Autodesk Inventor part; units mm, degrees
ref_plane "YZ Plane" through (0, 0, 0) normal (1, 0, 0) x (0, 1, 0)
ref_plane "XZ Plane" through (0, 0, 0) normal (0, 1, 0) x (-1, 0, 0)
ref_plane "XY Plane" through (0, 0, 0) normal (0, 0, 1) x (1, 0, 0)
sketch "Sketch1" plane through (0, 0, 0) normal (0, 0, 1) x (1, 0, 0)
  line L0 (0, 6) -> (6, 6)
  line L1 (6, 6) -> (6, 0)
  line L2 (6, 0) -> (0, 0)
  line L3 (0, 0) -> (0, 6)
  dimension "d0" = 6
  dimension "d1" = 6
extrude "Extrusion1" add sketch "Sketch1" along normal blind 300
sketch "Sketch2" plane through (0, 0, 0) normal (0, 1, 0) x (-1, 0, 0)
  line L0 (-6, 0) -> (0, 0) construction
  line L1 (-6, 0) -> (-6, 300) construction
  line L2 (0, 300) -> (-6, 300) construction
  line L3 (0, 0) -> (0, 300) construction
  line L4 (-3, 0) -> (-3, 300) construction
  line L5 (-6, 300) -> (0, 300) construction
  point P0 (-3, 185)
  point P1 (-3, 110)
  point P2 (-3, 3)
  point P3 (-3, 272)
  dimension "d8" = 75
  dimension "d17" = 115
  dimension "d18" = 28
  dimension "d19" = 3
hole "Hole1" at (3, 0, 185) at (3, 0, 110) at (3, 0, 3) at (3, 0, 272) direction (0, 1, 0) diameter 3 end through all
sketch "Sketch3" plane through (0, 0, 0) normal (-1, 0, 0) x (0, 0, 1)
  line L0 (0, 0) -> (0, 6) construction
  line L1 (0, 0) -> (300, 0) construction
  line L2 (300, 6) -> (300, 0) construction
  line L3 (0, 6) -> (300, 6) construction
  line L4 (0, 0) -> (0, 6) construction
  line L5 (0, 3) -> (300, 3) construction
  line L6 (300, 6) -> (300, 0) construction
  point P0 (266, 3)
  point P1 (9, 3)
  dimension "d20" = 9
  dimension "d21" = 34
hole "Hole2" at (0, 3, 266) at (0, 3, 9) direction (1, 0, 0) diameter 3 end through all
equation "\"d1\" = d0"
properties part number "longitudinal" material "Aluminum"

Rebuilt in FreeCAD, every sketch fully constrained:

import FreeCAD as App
import Part
import Sketcher

doc = App.newDocument("Part")
body = doc.addObject("PartDesign::Body", "Body")

# Sketch on XY plane
sketch1 = doc.addObject("Sketcher::SketchObject", "Sketch")
body.addObject(sketch1)
sketch1.AttachmentSupport = (doc.XY_Plane, [""])
sketch1.MapMode = "FlatFace"
sketch1.addGeometry([
    Part.LineSegment(App.Vector(6, 6, 0), App.Vector(0, 6, 0)),
    Part.LineSegment(App.Vector(0, 6, 0), App.Vector(0, 0, 0)),
    Part.LineSegment(App.Vector(0, 0, 0), App.Vector(6, 0, 0)),
    Part.LineSegment(App.Vector(6, 0, 0), App.Vector(6, 6, 0)),
], False)
sketch1.addConstraint([
    Sketcher.Constraint("Coincident", 0, 2, 1, 1),
    Sketcher.Constraint("Coincident", 1, 2, 2, 1),
    Sketcher.Constraint("Coincident", 2, 2, 3, 1),
    Sketcher.Constraint("Coincident", 3, 2, 0, 1),
    Sketcher.Constraint("Horizontal", 0),
    Sketcher.Constraint("Vertical", 1),
    Sketcher.Constraint("Horizontal", 2),
    Sketcher.Constraint("Vertical", 3),
    Sketcher.Constraint("Coincident", 1, 2, -1, 1),
    Sketcher.Constraint("Equal", 2, 1),
    Sketcher.Constraint("DistanceX", 0, 2, 0, 1, 6.0),
])
pad1 = doc.addObject("PartDesign::Pad", "Pad")
body.addObject(pad1)
pad1.Profile = sketch1
pad1.Length = 300

# Sketch on XZ plane
sketch2 = doc.addObject("Sketcher::SketchObject", "Sketch001")
body.addObject(sketch2)
sketch2.AttachmentSupport = (doc.XZ_Plane, [""])
sketch2.MapMode = "FlatFace"
sketch2.addGeometry([
    Part.Circle(App.Vector(3, 185, 0), App.Vector(0, 0, 1), 1.5),
    Part.Circle(App.Vector(3, 110, 0), App.Vector(0, 0, 1), 1.5),
    Part.Circle(App.Vector(3, 3, 0), App.Vector(0, 0, 1), 1.5),
    Part.Circle(App.Vector(3, 272, 0), App.Vector(0, 0, 1), 1.5),
], False)
sketch2.addConstraint([
    Sketcher.Constraint("Equal", 0, 1),
    Sketcher.Constraint("Equal", 1, 2),
    Sketcher.Constraint("Equal", 2, 3),
    Sketcher.Constraint("Vertical", 0, 3, 1, 3),
    Sketcher.Constraint("Vertical", 1, 3, 2, 3),
    Sketcher.Constraint("Vertical", 2, 3, 3, 3),
    Sketcher.Constraint("Diameter", 0, 3.0),
    Sketcher.Constraint("DistanceX", -1, 1, 0, 3, 3.0),
    Sketcher.Constraint("DistanceY", -1, 1, 0, 3, 185.0),
    Sketcher.Constraint("DistanceY", -1, 1, 1, 3, 110.0),
    Sketcher.Constraint("DistanceY", -1, 1, 2, 3, 3.0),
    Sketcher.Constraint("DistanceY", -1, 1, 3, 3, 272.0),
])
doc.recompute()
hole = doc.addObject("PartDesign::Hole", "Hole")
body.addObject(hole)
hole.Profile = sketch2
hole.ThreadType = "None"
hole.Diameter = 3
hole.DepthType = "ThroughAll"

# Sketch on YZ plane
sketch3 = doc.addObject("Sketcher::SketchObject", "Sketch002")
body.addObject(sketch3)
sketch3.AttachmentSupport = (doc.YZ_Plane, [""])
sketch3.MapMode = "FlatFace"
sketch3.addGeometry([
    Part.Circle(App.Vector(3, 266, 0), App.Vector(0, 0, 1), 1.5),
    Part.Circle(App.Vector(3, 9, 0), App.Vector(0, 0, 1), 1.5),
], False)
sketch3.addConstraint([
    Sketcher.Constraint("Equal", 0, 1),
    Sketcher.Constraint("Vertical", 0, 3, 1, 3),
    Sketcher.Constraint("Diameter", 0, 3.0),
    Sketcher.Constraint("DistanceX", -1, 1, 0, 3, 3.0),
    Sketcher.Constraint("DistanceY", -1, 1, 0, 3, 266.0),
    Sketcher.Constraint("DistanceY", -1, 1, 1, 3, 9.0),
])
doc.recompute()
hole2 = doc.addObject("PartDesign::Hole", "Hole001")
body.addObject(hole2)
hole2.Profile = sketch3
hole2.ThreadType = "None"
hole2.Diameter = 3
hole2.DepthType = "ThroughAll"
hole2.Reversed = True

doc.recompute()
